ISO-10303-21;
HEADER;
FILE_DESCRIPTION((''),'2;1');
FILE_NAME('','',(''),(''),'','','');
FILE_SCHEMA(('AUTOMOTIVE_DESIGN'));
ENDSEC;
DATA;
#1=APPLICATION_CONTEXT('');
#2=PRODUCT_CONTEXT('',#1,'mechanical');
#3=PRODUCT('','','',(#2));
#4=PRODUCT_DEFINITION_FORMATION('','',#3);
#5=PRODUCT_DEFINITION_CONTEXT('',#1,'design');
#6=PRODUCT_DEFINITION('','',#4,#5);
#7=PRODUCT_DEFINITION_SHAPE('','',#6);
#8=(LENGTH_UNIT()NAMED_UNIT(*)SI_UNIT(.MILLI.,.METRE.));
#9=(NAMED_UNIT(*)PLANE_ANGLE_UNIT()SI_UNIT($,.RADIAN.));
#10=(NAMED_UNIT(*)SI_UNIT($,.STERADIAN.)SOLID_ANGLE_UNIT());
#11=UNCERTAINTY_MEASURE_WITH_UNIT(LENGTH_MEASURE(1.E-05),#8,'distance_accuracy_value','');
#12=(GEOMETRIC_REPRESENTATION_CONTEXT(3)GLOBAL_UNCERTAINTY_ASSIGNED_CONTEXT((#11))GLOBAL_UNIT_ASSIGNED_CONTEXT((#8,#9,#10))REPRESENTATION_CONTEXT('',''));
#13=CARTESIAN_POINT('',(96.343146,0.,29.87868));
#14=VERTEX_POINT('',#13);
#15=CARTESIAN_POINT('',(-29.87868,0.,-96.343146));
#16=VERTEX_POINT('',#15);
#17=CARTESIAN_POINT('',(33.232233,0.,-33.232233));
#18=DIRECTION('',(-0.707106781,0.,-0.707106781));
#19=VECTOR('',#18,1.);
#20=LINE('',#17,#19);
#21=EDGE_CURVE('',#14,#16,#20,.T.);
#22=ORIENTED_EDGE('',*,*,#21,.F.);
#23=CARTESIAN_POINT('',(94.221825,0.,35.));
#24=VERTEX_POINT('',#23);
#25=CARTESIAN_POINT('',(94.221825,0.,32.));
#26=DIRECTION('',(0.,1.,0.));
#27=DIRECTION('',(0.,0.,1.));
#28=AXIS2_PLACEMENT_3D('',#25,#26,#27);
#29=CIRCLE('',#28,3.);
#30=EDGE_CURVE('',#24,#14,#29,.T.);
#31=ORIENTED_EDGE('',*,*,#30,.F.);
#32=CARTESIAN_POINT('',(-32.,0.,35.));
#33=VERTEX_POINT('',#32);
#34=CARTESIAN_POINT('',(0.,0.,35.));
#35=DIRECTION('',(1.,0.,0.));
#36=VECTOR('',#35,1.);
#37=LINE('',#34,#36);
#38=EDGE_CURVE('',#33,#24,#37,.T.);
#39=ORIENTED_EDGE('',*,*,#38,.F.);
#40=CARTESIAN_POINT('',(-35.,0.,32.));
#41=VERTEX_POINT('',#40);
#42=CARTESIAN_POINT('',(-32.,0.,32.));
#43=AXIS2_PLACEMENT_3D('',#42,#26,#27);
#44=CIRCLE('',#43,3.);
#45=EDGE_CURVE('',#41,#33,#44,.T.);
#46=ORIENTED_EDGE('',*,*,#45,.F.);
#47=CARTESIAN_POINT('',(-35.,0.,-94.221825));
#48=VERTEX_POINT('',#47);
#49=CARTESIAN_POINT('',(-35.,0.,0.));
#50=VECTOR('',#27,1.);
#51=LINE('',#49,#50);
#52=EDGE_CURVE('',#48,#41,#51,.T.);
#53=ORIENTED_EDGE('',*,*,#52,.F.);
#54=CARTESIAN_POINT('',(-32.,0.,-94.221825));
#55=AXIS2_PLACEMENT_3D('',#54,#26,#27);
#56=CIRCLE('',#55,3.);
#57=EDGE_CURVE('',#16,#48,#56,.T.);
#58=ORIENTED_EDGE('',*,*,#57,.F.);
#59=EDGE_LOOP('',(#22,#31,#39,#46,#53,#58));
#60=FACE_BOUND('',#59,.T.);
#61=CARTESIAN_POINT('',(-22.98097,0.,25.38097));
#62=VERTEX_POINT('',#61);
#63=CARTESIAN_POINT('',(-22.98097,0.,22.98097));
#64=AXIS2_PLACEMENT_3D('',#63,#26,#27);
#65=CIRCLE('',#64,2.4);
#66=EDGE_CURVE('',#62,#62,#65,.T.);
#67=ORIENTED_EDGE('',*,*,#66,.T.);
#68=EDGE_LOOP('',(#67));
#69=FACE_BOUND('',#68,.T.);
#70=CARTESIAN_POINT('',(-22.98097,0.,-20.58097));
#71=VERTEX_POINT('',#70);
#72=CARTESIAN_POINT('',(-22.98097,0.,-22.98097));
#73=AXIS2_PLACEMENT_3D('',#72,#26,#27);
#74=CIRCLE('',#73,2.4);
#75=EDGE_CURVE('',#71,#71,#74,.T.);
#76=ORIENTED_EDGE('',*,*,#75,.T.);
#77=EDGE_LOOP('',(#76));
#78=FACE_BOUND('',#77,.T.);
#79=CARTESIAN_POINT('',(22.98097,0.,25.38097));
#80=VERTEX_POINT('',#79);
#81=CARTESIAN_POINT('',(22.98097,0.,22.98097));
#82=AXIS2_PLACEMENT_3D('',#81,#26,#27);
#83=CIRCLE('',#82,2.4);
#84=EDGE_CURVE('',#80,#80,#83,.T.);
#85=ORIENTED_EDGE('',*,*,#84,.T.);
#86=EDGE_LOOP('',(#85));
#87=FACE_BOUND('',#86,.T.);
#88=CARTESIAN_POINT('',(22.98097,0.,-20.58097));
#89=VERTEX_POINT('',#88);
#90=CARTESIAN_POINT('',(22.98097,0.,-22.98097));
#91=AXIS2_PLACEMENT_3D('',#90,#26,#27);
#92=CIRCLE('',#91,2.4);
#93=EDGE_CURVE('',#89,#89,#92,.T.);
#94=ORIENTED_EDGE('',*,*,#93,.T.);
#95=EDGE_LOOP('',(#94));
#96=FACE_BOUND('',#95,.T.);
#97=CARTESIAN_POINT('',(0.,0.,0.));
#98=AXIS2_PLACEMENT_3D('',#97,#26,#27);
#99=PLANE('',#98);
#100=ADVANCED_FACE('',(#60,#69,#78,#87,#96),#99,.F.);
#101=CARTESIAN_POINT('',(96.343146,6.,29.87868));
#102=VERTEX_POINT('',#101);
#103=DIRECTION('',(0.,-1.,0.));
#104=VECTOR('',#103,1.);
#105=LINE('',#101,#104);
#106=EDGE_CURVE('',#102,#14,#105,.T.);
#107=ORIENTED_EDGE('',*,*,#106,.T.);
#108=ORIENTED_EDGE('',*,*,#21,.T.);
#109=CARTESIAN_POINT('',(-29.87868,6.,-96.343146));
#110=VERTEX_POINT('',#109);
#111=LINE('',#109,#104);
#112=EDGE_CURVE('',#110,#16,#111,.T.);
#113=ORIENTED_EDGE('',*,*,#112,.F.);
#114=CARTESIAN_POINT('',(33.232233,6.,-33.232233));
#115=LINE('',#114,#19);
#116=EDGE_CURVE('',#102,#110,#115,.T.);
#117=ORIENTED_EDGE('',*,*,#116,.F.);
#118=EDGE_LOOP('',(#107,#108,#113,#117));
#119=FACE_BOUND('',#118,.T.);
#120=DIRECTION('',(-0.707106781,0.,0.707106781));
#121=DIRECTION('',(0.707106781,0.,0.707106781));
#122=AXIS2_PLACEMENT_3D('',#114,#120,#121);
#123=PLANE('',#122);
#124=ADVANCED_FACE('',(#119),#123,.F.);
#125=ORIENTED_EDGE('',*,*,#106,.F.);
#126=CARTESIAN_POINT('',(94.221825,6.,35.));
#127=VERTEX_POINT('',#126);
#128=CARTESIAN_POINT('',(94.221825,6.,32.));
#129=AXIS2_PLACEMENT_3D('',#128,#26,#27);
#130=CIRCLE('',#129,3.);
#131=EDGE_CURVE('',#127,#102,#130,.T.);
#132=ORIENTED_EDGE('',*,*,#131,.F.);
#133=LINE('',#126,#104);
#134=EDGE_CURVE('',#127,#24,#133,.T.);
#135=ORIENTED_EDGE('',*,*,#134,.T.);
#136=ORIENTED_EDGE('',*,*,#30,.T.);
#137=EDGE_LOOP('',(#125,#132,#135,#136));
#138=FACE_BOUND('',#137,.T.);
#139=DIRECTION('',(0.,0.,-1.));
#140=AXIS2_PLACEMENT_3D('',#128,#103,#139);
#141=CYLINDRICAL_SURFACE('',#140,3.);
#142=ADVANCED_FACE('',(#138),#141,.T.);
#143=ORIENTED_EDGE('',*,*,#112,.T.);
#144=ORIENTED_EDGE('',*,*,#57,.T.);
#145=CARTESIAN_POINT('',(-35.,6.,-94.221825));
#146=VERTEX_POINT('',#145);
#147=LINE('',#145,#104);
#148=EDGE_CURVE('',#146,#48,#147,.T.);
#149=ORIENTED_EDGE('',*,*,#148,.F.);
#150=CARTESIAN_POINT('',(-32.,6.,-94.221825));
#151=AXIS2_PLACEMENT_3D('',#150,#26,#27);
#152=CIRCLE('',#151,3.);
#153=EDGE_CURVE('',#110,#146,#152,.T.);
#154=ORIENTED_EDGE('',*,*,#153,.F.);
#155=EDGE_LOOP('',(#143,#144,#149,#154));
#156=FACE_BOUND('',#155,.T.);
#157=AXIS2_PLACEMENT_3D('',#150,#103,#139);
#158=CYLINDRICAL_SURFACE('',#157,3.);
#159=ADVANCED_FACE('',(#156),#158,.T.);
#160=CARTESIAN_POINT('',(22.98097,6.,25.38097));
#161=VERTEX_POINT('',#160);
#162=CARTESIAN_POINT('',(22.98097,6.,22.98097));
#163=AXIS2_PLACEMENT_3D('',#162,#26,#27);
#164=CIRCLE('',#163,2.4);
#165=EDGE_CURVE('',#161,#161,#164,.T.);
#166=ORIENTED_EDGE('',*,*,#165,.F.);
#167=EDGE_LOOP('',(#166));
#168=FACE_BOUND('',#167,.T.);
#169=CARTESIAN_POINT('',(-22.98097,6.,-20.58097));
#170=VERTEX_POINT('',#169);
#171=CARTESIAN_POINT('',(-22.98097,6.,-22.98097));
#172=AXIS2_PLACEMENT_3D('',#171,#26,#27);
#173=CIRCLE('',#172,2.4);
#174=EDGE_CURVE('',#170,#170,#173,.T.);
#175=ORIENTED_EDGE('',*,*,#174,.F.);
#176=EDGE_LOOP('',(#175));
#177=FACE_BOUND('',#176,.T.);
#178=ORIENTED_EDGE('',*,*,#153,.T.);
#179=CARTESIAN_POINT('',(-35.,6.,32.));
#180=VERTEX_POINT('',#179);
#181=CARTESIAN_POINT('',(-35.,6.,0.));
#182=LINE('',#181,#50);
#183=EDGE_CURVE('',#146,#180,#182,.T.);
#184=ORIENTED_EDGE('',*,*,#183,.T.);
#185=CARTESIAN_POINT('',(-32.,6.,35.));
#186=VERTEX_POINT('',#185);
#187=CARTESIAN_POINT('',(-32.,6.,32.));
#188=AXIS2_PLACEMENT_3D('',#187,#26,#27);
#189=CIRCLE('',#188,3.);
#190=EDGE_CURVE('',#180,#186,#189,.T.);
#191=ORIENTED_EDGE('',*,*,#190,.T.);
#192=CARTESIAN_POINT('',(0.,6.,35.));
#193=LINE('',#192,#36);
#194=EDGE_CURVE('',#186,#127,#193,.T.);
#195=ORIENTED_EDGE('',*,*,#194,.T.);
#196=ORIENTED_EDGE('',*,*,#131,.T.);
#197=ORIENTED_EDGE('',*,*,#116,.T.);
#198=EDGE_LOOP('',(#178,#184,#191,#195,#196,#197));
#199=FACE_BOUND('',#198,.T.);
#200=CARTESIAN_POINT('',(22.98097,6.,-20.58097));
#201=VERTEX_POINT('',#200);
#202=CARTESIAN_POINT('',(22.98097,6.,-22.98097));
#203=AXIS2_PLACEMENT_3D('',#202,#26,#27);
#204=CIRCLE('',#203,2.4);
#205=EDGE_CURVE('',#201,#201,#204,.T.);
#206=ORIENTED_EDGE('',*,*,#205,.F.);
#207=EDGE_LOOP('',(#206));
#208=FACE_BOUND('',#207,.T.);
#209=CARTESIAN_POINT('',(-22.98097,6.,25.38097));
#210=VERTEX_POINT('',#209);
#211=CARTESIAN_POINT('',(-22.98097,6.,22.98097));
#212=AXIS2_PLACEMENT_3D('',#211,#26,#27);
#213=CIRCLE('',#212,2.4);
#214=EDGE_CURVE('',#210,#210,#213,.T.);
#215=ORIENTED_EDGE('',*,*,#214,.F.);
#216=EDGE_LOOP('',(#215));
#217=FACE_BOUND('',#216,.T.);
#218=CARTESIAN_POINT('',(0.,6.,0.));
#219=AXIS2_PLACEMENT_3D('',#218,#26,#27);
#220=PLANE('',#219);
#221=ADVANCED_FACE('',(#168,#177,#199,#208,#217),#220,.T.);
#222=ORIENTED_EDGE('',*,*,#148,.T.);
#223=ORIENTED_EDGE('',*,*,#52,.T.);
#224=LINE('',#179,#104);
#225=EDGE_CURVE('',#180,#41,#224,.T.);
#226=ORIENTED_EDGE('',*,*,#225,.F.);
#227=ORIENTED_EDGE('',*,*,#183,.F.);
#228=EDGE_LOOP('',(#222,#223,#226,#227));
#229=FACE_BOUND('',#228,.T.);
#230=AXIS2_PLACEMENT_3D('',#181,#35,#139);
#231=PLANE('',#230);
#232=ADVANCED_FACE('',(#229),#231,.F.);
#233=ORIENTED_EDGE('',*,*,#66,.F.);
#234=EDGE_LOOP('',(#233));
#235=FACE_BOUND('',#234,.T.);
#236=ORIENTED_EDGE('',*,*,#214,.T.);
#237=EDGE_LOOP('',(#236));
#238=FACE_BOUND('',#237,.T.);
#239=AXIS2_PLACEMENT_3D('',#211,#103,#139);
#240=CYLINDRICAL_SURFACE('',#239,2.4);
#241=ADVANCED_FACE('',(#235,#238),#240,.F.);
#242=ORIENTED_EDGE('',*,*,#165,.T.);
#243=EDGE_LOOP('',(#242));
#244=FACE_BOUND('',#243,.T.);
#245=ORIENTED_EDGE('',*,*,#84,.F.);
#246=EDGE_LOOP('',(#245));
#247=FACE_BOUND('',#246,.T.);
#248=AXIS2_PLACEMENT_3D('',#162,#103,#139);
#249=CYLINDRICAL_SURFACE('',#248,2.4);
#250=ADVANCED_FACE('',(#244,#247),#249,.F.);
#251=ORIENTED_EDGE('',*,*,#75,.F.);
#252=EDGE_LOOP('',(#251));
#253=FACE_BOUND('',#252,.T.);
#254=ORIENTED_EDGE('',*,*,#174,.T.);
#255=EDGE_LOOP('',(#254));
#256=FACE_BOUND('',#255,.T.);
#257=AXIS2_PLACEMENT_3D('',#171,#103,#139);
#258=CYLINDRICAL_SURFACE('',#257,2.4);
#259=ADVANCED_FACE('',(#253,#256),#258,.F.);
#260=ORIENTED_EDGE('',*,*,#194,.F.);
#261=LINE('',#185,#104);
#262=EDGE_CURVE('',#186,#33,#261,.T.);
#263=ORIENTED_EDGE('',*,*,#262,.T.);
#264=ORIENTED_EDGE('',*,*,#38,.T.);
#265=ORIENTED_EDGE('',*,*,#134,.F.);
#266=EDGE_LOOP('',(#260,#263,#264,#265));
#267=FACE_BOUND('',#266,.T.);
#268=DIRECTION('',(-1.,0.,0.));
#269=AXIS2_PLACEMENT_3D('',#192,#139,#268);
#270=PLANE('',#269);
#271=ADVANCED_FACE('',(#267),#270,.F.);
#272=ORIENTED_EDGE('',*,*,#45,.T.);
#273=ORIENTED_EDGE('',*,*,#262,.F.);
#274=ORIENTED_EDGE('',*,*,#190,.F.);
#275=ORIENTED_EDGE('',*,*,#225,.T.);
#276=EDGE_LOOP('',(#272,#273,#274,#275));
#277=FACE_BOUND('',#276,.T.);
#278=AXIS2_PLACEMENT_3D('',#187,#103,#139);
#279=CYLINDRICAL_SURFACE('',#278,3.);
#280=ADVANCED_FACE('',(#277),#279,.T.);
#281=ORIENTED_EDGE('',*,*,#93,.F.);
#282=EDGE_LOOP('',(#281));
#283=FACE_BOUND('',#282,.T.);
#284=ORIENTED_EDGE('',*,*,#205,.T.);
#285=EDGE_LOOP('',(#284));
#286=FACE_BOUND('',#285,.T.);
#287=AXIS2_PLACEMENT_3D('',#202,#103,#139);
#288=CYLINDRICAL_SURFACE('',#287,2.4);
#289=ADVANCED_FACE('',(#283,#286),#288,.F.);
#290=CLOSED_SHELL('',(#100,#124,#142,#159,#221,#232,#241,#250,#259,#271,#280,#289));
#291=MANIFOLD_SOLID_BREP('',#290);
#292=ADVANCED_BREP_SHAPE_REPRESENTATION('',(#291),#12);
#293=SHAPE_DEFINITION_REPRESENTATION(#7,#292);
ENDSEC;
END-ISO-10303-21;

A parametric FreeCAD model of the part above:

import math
import FreeCAD as App
import Part
import Sketcher

V = App.Vector
Q = App.Units.Quantity

doc = App.newDocument("Part")
body = doc.addObject("PartDesign::Body", "Body")

# Sketch on XZ plane
sketch1 = doc.addObject("Sketcher::SketchObject", "Sketch")
body.addObject(sketch1)
sketch1.AttachmentSupport = (doc.XZ_Plane, [""])
sketch1.MapMode = "FlatFace"
sketch1.addGeometry([
    Part.ArcOfCircle(Part.Circle(V(-32, 32, 0), V(0, 0, 1), 3), math.radians(90), math.radians(180)),  # 0
    Part.LineSegment(V(-32, 35, 0), V(94.2, 35, 0)),  # 1
    Part.ArcOfCircle(Part.Circle(V(94.2, 32, 0), V(0, 0, 1), 3), math.radians(-45), math.radians(90)),  # 2
    Part.LineSegment(V(96.3, 29.9, 0), V(-29.9, -96.3, 0)),  # 3
    Part.ArcOfCircle(Part.Circle(V(-32, -94.2, 0), V(0, 0, 1), 3), math.radians(-180), math.radians(-45)),  # 4
    Part.LineSegment(V(-35, -94.2, 0), V(-35, 32, 0)),  # 5
    Part.Circle(V(-23, 23, 0), V(0, 0, 1), 2.4),  # 6
    Part.Circle(V(23, 23, 0), V(0, 0, 1), 2.4),  # 7
    Part.Circle(V(-23, -23, 0), V(0, 0, 1), 2.4),  # 8
    Part.Circle(V(23, -23, 0), V(0, 0, 1), 2.4),  # 9
], False)
sketch1.addConstraint([
    Sketcher.Constraint("Tangent", 0, 1, 1, 1),
    Sketcher.Constraint("Tangent", 1, 2, 2, 2),
    Sketcher.Constraint("Tangent", 2, 1, 3, 1),
    Sketcher.Constraint("Tangent", 3, 2, 4, 2),
    Sketcher.Constraint("Tangent", 4, 1, 5, 1),
    Sketcher.Constraint("Tangent", 5, 2, 0, 2),
    Sketcher.Constraint("Horizontal", 1),
    Sketcher.Constraint("Vertical", 5),
    Sketcher.Constraint("Equal", 0, 2),
    Sketcher.Constraint("Equal", 2, 4),
    Sketcher.Constraint("Equal", 6, 7),
    Sketcher.Constraint("Equal", 7, 8),
    Sketcher.Constraint("Equal", 8, 9),
    Sketcher.Constraint("Symmetric", 7, 3, 8, 3, -1, 1),
    Sketcher.Constraint("Symmetric", 6, 3, 9, 3, -1, 1),
    Sketcher.Constraint("Symmetric", 6, 3, 7, 3, -2),
    Sketcher.Constraint("Equal", 1, 5),
    Sketcher.Constraint("Radius", 0, Q("3 mm")),
    Sketcher.Constraint("Diameter", 6, Q("4.8 mm")),
    Sketcher.Constraint("DistanceX", 0, 3, -1, 1, Q("32 mm")),
    Sketcher.Constraint("DistanceY", -1, 1, 0, 3, Q("32 mm")),
    Sketcher.Constraint("DistanceX", 1, 1, 1, 2, Q("126.221825 mm")),
    Sketcher.Constraint("DistanceX", 6, 3, -1, 1, Q("22.98097 mm")),
    Sketcher.Constraint("DistanceY", -1, 1, 6, 3, Q("22.98097 mm")),
])
pad1 = doc.addObject("PartDesign::Pad", "Pad")
body.addObject(pad1)
pad1.Profile = sketch1
pad1.Length = 6
pad1.Reversed = True

doc.recompute()
